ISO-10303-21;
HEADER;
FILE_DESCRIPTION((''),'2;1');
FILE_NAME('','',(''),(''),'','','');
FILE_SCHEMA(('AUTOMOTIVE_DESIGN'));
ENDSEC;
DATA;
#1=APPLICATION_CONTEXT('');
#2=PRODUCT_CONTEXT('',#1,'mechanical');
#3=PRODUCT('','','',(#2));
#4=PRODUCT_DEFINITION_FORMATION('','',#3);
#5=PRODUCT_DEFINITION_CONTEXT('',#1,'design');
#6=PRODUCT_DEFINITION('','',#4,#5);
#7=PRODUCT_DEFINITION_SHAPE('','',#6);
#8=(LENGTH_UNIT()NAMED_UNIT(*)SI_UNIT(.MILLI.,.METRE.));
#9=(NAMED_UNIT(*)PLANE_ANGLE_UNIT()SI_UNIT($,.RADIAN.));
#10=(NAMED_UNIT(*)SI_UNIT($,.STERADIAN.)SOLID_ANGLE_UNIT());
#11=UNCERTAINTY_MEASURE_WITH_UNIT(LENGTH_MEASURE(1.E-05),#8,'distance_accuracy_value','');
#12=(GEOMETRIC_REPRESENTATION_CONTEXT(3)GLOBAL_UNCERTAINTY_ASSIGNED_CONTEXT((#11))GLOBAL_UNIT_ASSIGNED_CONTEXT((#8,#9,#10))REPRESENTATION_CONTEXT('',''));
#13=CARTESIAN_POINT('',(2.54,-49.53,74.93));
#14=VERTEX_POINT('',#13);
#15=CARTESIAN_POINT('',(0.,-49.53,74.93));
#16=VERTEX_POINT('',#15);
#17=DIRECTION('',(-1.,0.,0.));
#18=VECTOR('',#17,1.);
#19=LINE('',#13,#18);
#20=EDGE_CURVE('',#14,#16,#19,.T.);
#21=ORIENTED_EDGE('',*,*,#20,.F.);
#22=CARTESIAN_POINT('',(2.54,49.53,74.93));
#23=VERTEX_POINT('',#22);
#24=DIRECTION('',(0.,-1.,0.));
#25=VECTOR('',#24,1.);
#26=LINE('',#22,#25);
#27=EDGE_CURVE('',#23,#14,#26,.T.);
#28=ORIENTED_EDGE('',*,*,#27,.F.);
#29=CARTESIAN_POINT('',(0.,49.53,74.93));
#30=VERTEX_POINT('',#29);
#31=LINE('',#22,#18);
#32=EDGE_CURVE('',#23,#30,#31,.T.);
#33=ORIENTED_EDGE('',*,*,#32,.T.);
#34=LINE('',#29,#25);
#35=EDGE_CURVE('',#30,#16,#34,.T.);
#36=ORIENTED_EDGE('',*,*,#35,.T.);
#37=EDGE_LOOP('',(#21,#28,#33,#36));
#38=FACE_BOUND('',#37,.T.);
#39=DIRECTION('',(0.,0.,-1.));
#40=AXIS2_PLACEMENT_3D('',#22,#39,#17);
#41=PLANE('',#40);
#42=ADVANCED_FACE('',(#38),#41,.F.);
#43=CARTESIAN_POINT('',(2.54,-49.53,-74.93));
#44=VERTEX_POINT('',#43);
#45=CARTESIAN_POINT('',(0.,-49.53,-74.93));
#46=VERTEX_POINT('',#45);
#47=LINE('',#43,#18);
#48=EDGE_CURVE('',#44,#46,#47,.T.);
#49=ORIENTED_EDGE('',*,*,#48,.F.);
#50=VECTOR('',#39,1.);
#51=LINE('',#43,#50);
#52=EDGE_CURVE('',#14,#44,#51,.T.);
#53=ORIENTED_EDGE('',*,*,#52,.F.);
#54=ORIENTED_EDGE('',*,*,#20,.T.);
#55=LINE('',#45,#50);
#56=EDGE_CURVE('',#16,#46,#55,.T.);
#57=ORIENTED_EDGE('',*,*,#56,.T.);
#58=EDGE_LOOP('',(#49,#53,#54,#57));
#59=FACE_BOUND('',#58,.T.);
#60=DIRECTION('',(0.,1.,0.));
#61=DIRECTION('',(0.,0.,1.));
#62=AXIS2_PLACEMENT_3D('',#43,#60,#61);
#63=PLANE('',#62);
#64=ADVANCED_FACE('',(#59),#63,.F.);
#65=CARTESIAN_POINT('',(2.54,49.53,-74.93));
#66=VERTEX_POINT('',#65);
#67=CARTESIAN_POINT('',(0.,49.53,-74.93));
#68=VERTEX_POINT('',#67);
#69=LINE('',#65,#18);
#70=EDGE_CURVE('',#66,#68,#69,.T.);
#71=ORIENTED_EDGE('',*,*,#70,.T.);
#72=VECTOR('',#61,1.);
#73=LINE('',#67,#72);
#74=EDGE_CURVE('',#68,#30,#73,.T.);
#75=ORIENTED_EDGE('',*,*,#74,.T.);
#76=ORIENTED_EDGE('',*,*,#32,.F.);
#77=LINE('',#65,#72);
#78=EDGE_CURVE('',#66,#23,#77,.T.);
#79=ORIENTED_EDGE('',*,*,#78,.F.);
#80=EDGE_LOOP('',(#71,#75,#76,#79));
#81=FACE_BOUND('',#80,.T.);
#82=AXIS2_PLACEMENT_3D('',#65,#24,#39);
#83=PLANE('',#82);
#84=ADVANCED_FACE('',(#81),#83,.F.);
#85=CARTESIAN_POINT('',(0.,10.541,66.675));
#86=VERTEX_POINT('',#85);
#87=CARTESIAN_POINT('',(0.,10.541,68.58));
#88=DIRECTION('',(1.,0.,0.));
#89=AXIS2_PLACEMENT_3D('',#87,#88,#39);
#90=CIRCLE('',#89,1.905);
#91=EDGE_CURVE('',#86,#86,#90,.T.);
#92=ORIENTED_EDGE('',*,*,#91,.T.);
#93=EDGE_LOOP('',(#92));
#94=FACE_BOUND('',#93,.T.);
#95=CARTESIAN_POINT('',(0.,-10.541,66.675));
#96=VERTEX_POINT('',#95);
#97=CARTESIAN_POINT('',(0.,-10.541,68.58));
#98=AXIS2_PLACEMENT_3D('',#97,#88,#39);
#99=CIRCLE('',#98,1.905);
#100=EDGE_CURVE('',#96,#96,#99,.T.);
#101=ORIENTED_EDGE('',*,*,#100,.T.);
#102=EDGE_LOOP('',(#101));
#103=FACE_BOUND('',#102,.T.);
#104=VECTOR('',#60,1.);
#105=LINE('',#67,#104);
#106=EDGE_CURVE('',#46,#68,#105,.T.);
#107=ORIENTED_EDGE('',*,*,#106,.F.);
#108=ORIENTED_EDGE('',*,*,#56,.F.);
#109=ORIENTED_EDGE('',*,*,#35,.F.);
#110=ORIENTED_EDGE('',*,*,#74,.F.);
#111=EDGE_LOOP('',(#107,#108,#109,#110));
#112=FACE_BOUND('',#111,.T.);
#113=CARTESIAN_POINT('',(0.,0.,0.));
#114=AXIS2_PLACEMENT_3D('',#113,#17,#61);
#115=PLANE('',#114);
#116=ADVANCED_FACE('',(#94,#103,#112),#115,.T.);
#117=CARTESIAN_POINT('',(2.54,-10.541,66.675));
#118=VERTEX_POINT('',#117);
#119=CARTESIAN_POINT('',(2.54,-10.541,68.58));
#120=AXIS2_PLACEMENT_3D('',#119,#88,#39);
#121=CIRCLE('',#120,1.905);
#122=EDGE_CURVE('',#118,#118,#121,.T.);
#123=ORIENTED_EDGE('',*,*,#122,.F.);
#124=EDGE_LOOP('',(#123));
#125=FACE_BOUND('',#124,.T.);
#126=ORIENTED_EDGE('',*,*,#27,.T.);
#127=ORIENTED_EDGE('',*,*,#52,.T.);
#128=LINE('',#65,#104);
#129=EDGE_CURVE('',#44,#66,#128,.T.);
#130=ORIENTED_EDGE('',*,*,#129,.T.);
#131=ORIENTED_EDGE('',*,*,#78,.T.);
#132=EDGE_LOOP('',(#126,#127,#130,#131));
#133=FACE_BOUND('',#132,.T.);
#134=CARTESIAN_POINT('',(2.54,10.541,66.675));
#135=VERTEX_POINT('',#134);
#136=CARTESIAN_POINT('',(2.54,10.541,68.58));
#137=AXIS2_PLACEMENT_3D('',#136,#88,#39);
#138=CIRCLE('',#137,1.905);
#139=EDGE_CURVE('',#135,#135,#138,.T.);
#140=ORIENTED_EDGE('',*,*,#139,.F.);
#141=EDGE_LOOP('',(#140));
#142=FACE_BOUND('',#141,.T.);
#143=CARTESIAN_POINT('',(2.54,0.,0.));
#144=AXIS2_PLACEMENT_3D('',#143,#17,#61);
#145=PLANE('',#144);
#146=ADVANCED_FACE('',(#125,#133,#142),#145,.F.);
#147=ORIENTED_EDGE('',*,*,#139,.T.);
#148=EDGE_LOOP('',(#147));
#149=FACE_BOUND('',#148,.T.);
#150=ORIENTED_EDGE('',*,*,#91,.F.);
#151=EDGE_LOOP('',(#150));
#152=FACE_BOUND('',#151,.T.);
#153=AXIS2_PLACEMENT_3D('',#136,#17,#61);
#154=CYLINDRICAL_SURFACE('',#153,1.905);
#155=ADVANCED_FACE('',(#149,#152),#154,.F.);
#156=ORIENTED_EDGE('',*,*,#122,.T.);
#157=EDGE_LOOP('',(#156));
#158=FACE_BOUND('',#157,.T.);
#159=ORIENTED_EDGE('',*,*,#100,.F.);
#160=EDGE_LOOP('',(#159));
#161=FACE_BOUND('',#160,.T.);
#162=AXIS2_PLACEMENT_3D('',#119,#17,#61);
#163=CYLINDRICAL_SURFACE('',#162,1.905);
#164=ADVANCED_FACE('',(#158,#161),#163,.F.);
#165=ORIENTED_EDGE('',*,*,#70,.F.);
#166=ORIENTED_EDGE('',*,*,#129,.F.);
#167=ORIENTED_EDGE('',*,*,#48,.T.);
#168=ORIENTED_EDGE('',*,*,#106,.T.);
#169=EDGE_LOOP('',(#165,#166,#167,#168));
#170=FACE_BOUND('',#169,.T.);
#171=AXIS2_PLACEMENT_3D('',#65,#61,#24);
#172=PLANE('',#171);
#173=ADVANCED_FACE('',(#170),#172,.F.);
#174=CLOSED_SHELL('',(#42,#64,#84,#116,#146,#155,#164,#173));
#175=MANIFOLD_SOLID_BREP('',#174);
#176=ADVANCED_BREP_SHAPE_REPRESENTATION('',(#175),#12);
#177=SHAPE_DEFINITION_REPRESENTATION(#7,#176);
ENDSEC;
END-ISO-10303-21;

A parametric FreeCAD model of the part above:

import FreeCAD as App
import Part
import Sketcher

V = App.Vector
Q = App.Units.Quantity

doc = App.newDocument("Part")
params = doc.addObject("Spreadsheet::Sheet", "Params")
for row, (alias, value) in enumerate([
    ("sketch1_diameter", "0.15 in"),
    ("sketch1_width", "3.9 in"),
    ("sketch1_height", "5.9 in"),
    ("pad1_length", "0.1 in"),
], start=1):
    params.set(f"A{row}", alias)
    params.set(f"B{row}", "=" + value)
    params.setAlias(f"B{row}", alias)

body = doc.addObject("PartDesign::Body", "Body")

sketch1 = body.newObject("Sketcher::SketchObject", "Sketch")
sketch1.AttachmentSupport = (doc.getObject("YZ_Plane"), [""])
sketch1.MapMode = "FlatFace"
sketch1.addGeometry([
    Part.LineSegment(V(49.5, 74.9, 0), V(-49.5, 74.9, 0)),
    Part.LineSegment(V(-49.5, 74.9, 0), V(-49.5, -74.9, 0)),
    Part.LineSegment(V(-49.5, -74.9, 0), V(49.5, -74.9, 0)),
    Part.LineSegment(V(49.5, -74.9, 0), V(49.5, 74.9, 0)),
    Part.Circle(V(-10.5, 68.6, 0), V(0, 0, 1), 1.9),
    Part.Circle(V(10.5, 68.6, 0), V(0, 0, 1), 1.9),
], False)
sketch1.addConstraint([
    Sketcher.Constraint("Coincident", 0, 2, 1, 1),
    Sketcher.Constraint("Coincident", 1, 2, 2, 1),
    Sketcher.Constraint("Coincident", 2, 2, 3, 1),
    Sketcher.Constraint("Coincident", 3, 2, 0, 1),
    Sketcher.Constraint("Horizontal", 0),
    Sketcher.Constraint("Vertical", 1),
    Sketcher.Constraint("Horizontal", 2),
    Sketcher.Constraint("Vertical", 3),
    Sketcher.Constraint("Equal", 4, 5),
    Sketcher.Constraint("Symmetric", 0, 2, 2, 2, -1, 1),
    Sketcher.Constraint("Symmetric", 4, 3, 5, 3, -2),
    Sketcher.Constraint("Diameter", 4, Q("0.15 in")),
    Sketcher.Constraint("DistanceX", 0, 2, 0, 1, Q("3.9 in")),
    Sketcher.Constraint("DistanceY", 1, 2, 1, 1, Q("5.9 in")),
    Sketcher.Constraint("DistanceY", -1, 1, 4, 3, Q("2.7 in")),
    Sketcher.Constraint("DistanceX", 4, 3, 5, 3, Q("0.83 in")),
])
sketch1.setExpression("Constraints[11]", "Params.sketch1_diameter")
sketch1.setExpression("Constraints[12]", "Params.sketch1_width")
sketch1.setExpression("Constraints[13]", "Params.sketch1_height")
pad1 = body.newObject("PartDesign::Pad", "Pad")
pad1.Profile = sketch1
pad1.setExpression("Length", "Params.pad1_length")

doc.recompute()
